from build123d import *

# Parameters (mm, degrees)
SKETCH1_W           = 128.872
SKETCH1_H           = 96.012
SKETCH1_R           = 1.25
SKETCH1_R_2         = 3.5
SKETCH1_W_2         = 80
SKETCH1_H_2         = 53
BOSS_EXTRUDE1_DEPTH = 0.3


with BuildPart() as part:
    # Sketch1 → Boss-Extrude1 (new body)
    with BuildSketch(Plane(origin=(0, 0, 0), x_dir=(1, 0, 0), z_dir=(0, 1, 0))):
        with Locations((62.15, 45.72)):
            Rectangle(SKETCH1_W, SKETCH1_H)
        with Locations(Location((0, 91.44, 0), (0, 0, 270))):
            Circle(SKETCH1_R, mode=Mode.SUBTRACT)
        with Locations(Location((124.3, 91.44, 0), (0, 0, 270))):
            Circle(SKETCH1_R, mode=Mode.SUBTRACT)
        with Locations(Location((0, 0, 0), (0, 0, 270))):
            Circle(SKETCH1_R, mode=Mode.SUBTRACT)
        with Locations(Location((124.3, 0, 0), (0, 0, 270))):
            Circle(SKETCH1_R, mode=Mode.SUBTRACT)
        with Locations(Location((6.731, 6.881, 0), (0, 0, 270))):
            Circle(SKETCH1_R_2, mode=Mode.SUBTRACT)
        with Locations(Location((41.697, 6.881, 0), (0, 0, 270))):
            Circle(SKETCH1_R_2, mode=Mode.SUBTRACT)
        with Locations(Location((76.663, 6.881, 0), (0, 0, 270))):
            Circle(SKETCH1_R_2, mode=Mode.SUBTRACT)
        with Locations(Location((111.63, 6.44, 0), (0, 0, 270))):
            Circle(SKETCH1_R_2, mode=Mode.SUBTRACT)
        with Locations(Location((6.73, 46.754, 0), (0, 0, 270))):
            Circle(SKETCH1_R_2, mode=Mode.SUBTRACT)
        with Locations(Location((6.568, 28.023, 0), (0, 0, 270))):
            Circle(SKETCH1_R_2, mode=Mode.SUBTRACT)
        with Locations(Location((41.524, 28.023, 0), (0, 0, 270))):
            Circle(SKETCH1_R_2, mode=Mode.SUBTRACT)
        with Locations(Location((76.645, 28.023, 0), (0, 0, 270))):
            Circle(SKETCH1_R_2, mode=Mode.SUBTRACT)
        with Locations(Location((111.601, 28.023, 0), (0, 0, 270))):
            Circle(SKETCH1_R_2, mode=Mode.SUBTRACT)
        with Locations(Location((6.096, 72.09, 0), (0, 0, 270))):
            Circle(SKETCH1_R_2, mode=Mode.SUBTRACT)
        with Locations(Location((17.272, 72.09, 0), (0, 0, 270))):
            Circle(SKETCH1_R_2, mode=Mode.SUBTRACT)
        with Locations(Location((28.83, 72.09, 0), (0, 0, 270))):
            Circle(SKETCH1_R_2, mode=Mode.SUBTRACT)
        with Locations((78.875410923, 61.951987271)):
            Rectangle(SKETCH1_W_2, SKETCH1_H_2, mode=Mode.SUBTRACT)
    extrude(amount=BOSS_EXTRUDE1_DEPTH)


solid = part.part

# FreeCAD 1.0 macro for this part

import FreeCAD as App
import Part
import Sketcher
from FreeCAD import Vector
Q = App.Units.Quantity

doc = App.newDocument("Part")
body = doc.addObject("PartDesign::Body", "Body")

# Sketch on XZ plane
sketch1 = body.newObject("Sketcher::SketchObject", "Sketch")
sketch1.AttachmentSupport = (doc.getObject("XZ_Plane"), [""])
sketch1.MapMode = "FlatFace"
sketch1.addGeometry(Part.LineSegment(Vector(-2.3, -93.7, 0), Vector(-2.3, 2.3, 0)), False)
sketch1.addGeometry(Part.LineSegment(Vector(-2.3, 2.3, 0), Vector(126.6, 2.3, 0)), False)
sketch1.addGeometry(Part.LineSegment(Vector(126.6, 2.3, 0), Vector(126.6, -93.7, 0)), False)
sketch1.addGeometry(Part.LineSegment(Vector(126.6, -93.7, 0), Vector(-2.3, -93.7, 0)), False)
sketch1.addGeometry(Part.Circle(Vector(0, 0, 0), Vector(0, 0, 1), 1.2), False)
sketch1.addGeometry(Part.Circle(Vector(6.7, -6.9, 0), Vector(0, 0, 1), 3.5), False)
sketch1.addGeometry(Part.Circle(Vector(41.7, -6.9, 0), Vector(0, 0, 1), 3.5), False)
sketch1.addGeometry(Part.Circle(Vector(6.6, -28, 0), Vector(0, 0, 1), 3.5), False)
sketch1.addGeometry(Part.Circle(Vector(41.5, -28, 0), Vector(0, 0, 1), 3.5), False)
sketch1.addGeometry(Part.Circle(Vector(76.7, -6.9, 0), Vector(0, 0, 1), 3.5), False)
sketch1.addGeometry(Part.Circle(Vector(124.3, 0, 0), Vector(0, 0, 1), 1.2), False)
sketch1.addGeometry(Part.Circle(Vector(111.6, -6.4, 0), Vector(0, 0, 1), 3.5), False)
sketch1.addGeometry(Part.Circle(Vector(76.6, -28, 0), Vector(0, 0, 1), 3.5), False)
sketch1.addGeometry(Part.Circle(Vector(111.6, -28, 0), Vector(0, 0, 1), 3.5), False)
sketch1.addGeometry(Part.Circle(Vector(6.7, -46.8, 0), Vector(0, 0, 1), 3.5), False)
sketch1.addGeometry(Part.Circle(Vector(6.1, -72.1, 0), Vector(0, 0, 1), 3.5), False)
sketch1.addGeometry(Part.Circle(Vector(17.3, -72.1, 0), Vector(0, 0, 1), 3.5), False)
sketch1.addGeometry(Part.Circle(Vector(28.8, -72.1, 0), Vector(0, 0, 1), 3.5), False)
sketch1.addGeometry(Part.Circle(Vector(0, -91.4, 0), Vector(0, 0, 1), 1.2), False)
sketch1.addGeometry(Part.LineSegment(Vector(118.9, -35.5, 0), Vector(38.9, -35.5, 0)), False)
sketch1.addGeometry(Part.LineSegment(Vector(38.9, -35.5, 0), Vector(38.9, -88.5, 0)), False)
sketch1.addGeometry(Part.LineSegment(Vector(38.9, -88.5, 0), Vector(118.9, -88.5, 0)), False)
sketch1.addGeometry(Part.LineSegment(Vector(118.9, -88.5, 0), Vector(118.9, -35.5, 0)), False)
sketch1.addGeometry(Part.Circle(Vector(124.3, -91.4, 0), Vector(0, 0, 1), 1.2), False)
sketch1.addConstraint(Sketcher.Constraint("Coincident", 0, 2, 1, 1))
sketch1.addConstraint(Sketcher.Constraint("Coincident", 1, 2, 2, 1))
sketch1.addConstraint(Sketcher.Constraint("Coincident", 2, 2, 3, 1))
sketch1.addConstraint(Sketcher.Constraint("Coincident", 3, 2, 0, 1))
sketch1.addConstraint(Sketcher.Constraint("Coincident", 19, 2, 20, 1))
sketch1.addConstraint(Sketcher.Constraint("Coincident", 20, 2, 21, 1))
sketch1.addConstraint(Sketcher.Constraint("Coincident", 21, 2, 22, 1))
sketch1.addConstraint(Sketcher.Constraint("Coincident", 22, 2, 19, 1))
sketch1.addConstraint(Sketcher.Constraint("Vertical", 0))
sketch1.addConstraint(Sketcher.Constraint("Horizontal", 1))
sketch1.addConstraint(Sketcher.Constraint("Vertical", 2))
sketch1.addConstraint(Sketcher.Constraint("Horizontal", 3))
sketch1.addConstraint(Sketcher.Constraint("Horizontal", 19))
sketch1.addConstraint(Sketcher.Constraint("Vertical", 20))
sketch1.addConstraint(Sketcher.Constraint("Horizontal", 21))
sketch1.addConstraint(Sketcher.Constraint("Vertical", 22))
sketch1.addConstraint(Sketcher.Constraint("Coincident", 4, 3, -1, 1))
sketch1.addConstraint(Sketcher.Constraint("Equal", 5, 6))
sketch1.addConstraint(Sketcher.Constraint("Equal", 6, 7))
sketch1.addConstraint(Sketcher.Constraint("Equal", 7, 8))
sketch1.addConstraint(Sketcher.Constraint("Equal", 8, 9))
sketch1.addConstraint(Sketcher.Constraint("Equal", 4, 10))
sketch1.addConstraint(Sketcher.Constraint("Equal", 9, 11))
sketch1.addConstraint(Sketcher.Constraint("Equal", 11, 12))
sketch1.addConstraint(Sketcher.Constraint("Equal", 12, 13))
sketch1.addConstraint(Sketcher.Constraint("Equal", 13, 14))
sketch1.addConstraint(Sketcher.Constraint("Equal", 14, 15))
sketch1.addConstraint(Sketcher.Constraint("Equal", 15, 16))
sketch1.addConstraint(Sketcher.Constraint("Equal", 16, 17))
sketch1.addConstraint(Sketcher.Constraint("Equal", 10, 18))
sketch1.addConstraint(Sketcher.Constraint("Equal", 18, 23))
sketch1.addConstraint(Sketcher.Constraint("PointOnObject", 10, 3, -1))
sketch1.addConstraint(Sketcher.Constraint("PointOnObject", 18, 3, -2))
sketch1.addConstraint(Sketcher.Constraint("Horizontal", 5, 3, 6, 3))
sketch1.addConstraint(Sketcher.Constraint("Horizontal", 7, 3, 8, 3))
sketch1.addConstraint(Sketcher.Constraint("Horizontal", 6, 3, 9, 3))
sketch1.addConstraint(Sketcher.Constraint("Horizontal", 8, 3, 12, 3))
sketch1.addConstraint(Sketcher.Constraint("Horizontal", 12, 3, 13, 3))
sketch1.addConstraint(Sketcher.Constraint("Horizontal", 15, 3, 16, 3))
sketch1.addConstraint(Sketcher.Constraint("Horizontal", 16, 3, 17, 3))
sketch1.addConstraint(Sketcher.Constraint("Horizontal", 18, 3, 23, 3))
sketch1.addConstraint(Sketcher.Constraint("Vertical", 10, 3, 23, 3))
sketch1.addConstraint(Sketcher.Constraint("Diameter", 5, Q("7 mm")))
sketch1.addConstraint(Sketcher.Constraint("Diameter", 4, Q("2.5 mm")))
sketch1.addConstraint(Sketcher.Constraint("DistanceX", 19, 2, 19, 1, Q("80 mm")))
sketch1.addConstraint(Sketcher.Constraint("DistanceY", 20, 2, 20, 1, Q("53 mm")))
sketch1.addConstraint(Sketcher.Constraint("DistanceY", 23, 3, 11, 3, Q("85 mm")))
sketch1.addConstraint(Sketcher.Constraint("DistanceX", -1, 1, 10, 3, Q("124.3 mm")))
sketch1.addConstraint(Sketcher.Constraint("DistanceX", 14, 3, 17, 3, Q("22.1 mm")))
sketch1.addConstraint(Sketcher.Constraint("DistanceX", 1, 1, 1, 2, Q("128.872 mm")))
sketch1.addConstraint(Sketcher.Constraint("DistanceY", 0, 1, 0, 2, Q("96.012 mm")))
sketch1.addConstraint(Sketcher.Constraint("DistanceX", -1, 1, 11, 3, Q("111.63 mm")))
sketch1.addConstraint(Sketcher.Constraint("DistanceY", 11, 3, -1, 1, Q("6.44 mm")))
sketch1.addConstraint(Sketcher.Constraint("DistanceX", -1, 1, 14, 3, Q("6.73 mm")))
sketch1.addConstraint(Sketcher.Constraint("DistanceY", 15, 3, -1, 1, Q("72.09 mm")))
sketch1.addConstraint(Sketcher.Constraint("DistanceY", 14, 3, 0, 2, Q("49.04 mm")))
sketch1.addConstraint(Sketcher.Constraint("DistanceX", -1, 1, 5, 3, Q("6.731 mm")))
sketch1.addConstraint(Sketcher.Constraint("DistanceY", 5, 3, -1, 1, Q("6.881 mm")))
sketch1.addConstraint(Sketcher.Constraint("DistanceX", -1, 1, 6, 3, Q("41.697 mm")))
sketch1.addConstraint(Sketcher.Constraint("DistanceX", -1, 1, 7, 3, Q("6.568 mm")))
sketch1.addConstraint(Sketcher.Constraint("DistanceY", 7, 3, -1, 1, Q("28.023 mm")))
sketch1.addConstraint(Sketcher.Constraint("DistanceX", -1, 1, 8, 3, Q("41.524 mm")))
sketch1.addConstraint(Sketcher.Constraint("DistanceX", -1, 1, 9, 3, Q("76.663 mm")))
sketch1.addConstraint(Sketcher.Constraint("DistanceX", -1, 1, 12, 3, Q("76.645 mm")))
sketch1.addConstraint(Sketcher.Constraint("DistanceX", -1, 1, 13, 3, Q("111.601 mm")))
sketch1.addConstraint(Sketcher.Constraint("DistanceY", 14, 3, -1, 1, Q("46.754 mm")))
sketch1.addConstraint(Sketcher.Constraint("DistanceX", -1, 1, 15, 3, Q("6.096 mm")))
sketch1.addConstraint(Sketcher.Constraint("DistanceX", -1, 1, 16, 3, Q("17.272 mm")))
sketch1.addConstraint(Sketcher.Constraint("DistanceX", 0, 2, -1, 1, Q("2.286 mm")))
sketch1.addConstraint(Sketcher.Constraint("DistanceX", -1, 1, 19, 2, Q("38.875411 mm")))
sketch1.addConstraint(Sketcher.Constraint("DistanceY", 19, 2, -1, 1, Q("35.451987 mm")))
pad1 = body.newObject("PartDesign::Pad", "Pad")
pad1.Profile = sketch1
pad1.Length = 0.3
pad1.Reversed = True

doc.recompute()
